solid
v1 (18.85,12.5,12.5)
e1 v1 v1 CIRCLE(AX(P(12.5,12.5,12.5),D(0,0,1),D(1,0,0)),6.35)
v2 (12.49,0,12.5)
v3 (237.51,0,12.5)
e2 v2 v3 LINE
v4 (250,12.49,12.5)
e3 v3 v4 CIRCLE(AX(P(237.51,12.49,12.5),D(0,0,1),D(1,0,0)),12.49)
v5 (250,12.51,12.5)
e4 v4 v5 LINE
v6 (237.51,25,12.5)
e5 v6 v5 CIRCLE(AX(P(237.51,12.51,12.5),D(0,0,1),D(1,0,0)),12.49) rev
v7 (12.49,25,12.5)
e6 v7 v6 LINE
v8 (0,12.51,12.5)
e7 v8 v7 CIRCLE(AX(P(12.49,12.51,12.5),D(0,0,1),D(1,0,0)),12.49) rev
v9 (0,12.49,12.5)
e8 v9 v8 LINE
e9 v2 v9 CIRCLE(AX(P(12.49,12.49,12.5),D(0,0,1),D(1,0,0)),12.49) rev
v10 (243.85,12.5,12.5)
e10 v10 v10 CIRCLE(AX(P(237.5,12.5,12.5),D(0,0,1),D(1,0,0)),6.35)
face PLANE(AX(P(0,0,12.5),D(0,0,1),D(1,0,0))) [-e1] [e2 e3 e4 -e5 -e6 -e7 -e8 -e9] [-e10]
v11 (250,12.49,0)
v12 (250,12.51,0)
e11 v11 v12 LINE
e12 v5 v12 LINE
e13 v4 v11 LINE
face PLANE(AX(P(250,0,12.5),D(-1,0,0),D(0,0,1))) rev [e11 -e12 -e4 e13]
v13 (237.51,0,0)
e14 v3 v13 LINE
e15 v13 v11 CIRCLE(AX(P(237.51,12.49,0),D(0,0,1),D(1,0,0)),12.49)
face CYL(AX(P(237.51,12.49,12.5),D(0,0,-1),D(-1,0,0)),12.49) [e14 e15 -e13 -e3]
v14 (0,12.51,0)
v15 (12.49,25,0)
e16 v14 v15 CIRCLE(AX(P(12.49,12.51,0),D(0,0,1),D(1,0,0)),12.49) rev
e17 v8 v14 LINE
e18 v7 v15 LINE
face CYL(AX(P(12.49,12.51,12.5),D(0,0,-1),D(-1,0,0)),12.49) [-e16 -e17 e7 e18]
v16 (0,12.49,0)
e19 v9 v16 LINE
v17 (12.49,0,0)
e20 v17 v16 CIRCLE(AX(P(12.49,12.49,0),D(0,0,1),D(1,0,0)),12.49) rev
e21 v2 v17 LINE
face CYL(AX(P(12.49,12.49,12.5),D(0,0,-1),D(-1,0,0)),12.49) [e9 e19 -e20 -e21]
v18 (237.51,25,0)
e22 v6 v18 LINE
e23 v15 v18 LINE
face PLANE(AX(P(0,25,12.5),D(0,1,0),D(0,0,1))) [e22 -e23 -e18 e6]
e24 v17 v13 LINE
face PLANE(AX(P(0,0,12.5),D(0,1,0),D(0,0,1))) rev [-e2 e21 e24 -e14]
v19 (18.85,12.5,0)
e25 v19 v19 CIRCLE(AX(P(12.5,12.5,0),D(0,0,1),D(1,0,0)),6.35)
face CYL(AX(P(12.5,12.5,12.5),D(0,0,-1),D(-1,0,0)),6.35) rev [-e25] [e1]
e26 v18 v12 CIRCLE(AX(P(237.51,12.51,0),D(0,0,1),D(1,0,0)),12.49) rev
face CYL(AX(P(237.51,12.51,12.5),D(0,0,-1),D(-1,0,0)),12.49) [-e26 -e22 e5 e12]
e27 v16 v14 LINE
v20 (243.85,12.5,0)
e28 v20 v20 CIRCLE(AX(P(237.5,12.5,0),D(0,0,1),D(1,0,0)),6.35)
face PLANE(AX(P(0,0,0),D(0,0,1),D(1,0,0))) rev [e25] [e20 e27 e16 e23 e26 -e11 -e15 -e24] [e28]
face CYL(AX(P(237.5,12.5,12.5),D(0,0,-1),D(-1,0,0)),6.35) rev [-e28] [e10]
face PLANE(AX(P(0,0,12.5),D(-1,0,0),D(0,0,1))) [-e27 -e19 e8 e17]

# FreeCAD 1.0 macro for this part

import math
import FreeCAD as App
import Part
import Sketcher

doc = App.newDocument("Part")
body = doc.addObject("PartDesign::Body", "Body")

# Sketch on XY plane
sketch1 = body.newObject("Sketcher::SketchObject", "Sketch")
sketch1.AttachmentSupport = (doc.getObject("XY_Plane"), [""])
sketch1.MapMode = "FlatFace"
sketch1.addGeometry(Part.ArcOfCircle(Part.Circle(App.Vector(237.51, 12.51, 0), App.Vector(0, 0, 1), 12.49), math.radians(0), math.radians(90)), False)
sketch1.addGeometry(Part.LineSegment(App.Vector(237.51, 25, 0), App.Vector(12.49, 25, 0)), False)
sketch1.addGeometry(Part.ArcOfCircle(Part.Circle(App.Vector(12.49, 12.51, 0), App.Vector(0, 0, 1), 12.49), math.radians(90), math.radians(180)), False)
sketch1.addGeometry(Part.LineSegment(App.Vector(0, 12.51, 0), App.Vector(0, 12.49, 0)), False)
sketch1.addGeometry(Part.ArcOfCircle(Part.Circle(App.Vector(12.49, 12.49, 0), App.Vector(0, 0, 1), 12.49), math.radians(180), math.radians(270)), False)
sketch1.addGeometry(Part.LineSegment(App.Vector(12.49, 0, 0), App.Vector(237.51, 0, 0)), False)
sketch1.addGeometry(Part.ArcOfCircle(Part.Circle(App.Vector(237.51, 12.49, 0), App.Vector(0, 0, 1), 12.49), math.radians(-90), math.radians(0)), False)
sketch1.addGeometry(Part.LineSegment(App.Vector(250, 12.49, 0), App.Vector(250, 12.51, 0)), False)
sketch1.addGeometry(Part.Circle(App.Vector(237.5, 12.5, 0), App.Vector(0, 0, 1), 6.35), False)
sketch1.addGeometry(Part.Circle(App.Vector(12.5, 12.5, 0), App.Vector(0, 0, 1), 6.35), False)
sketch1.addConstraint(Sketcher.Constraint("Tangent", 0, 2, 1, 1))
sketch1.addConstraint(Sketcher.Constraint("Tangent", 1, 2, 2, 1))
sketch1.addConstraint(Sketcher.Constraint("Tangent", 2, 2, 3, 1))
sketch1.addConstraint(Sketcher.Constraint("Tangent", 3, 2, 4, 1))
sketch1.addConstraint(Sketcher.Constraint("Tangent", 4, 2, 5, 1))
sketch1.addConstraint(Sketcher.Constraint("Tangent", 5, 2, 6, 1))
sketch1.addConstraint(Sketcher.Constraint("Tangent", 6, 2, 7, 1))
sketch1.addConstraint(Sketcher.Constraint("Tangent", 7, 2, 0, 1))
sketch1.addConstraint(Sketcher.Constraint("Horizontal", 1))
sketch1.addConstraint(Sketcher.Constraint("Horizontal", 5))
sketch1.addConstraint(Sketcher.Constraint("Equal", 0, 2))
sketch1.addConstraint(Sketcher.Constraint("Equal", 2, 4))
sketch1.addConstraint(Sketcher.Constraint("Equal", 4, 6))
sketch1.addConstraint(Sketcher.Constraint("Equal", 8, 9))
sketch1.addConstraint(Sketcher.Constraint("PointOnObject", 2, 2, -2))
sketch1.addConstraint(Sketcher.Constraint("PointOnObject", 4, 2, -1))
sketch1.addConstraint(Sketcher.Constraint("Horizontal", 8, 3, 9, 3))
sketch1.addConstraint(Sketcher.Constraint("Horizontal", 0, 3, 2, 2))
sketch1.addConstraint(Sketcher.Constraint("Horizontal", 3, 2, 6, 2))
sketch1.addConstraint(Sketcher.Constraint("Diameter", 8, 12.7))
sketch1.addConstraint(Sketcher.Constraint("Radius", 0, 12.49))
sketch1.addConstraint(Sketcher.Constraint("DistanceY", -1, 1, 0, 2, 25.0))
sketch1.addConstraint(Sketcher.Constraint("DistanceX", -1, 1, 6, 2, 250.0))
sketch1.addConstraint(Sketcher.Constraint("DistanceX", 9, 3, 8, 3, 225.0))
sketch1.addConstraint(Sketcher.Constraint("DistanceX", -1, 1, 8, 3, 237.5))
sketch1.addConstraint(Sketcher.Constraint("DistanceY", -1, 1, 8, 3, 12.5))
pad1 = body.newObject("PartDesign::Pad", "Pad")
pad1.Profile = sketch1
pad1.Length = 12.5

doc.recompute()
